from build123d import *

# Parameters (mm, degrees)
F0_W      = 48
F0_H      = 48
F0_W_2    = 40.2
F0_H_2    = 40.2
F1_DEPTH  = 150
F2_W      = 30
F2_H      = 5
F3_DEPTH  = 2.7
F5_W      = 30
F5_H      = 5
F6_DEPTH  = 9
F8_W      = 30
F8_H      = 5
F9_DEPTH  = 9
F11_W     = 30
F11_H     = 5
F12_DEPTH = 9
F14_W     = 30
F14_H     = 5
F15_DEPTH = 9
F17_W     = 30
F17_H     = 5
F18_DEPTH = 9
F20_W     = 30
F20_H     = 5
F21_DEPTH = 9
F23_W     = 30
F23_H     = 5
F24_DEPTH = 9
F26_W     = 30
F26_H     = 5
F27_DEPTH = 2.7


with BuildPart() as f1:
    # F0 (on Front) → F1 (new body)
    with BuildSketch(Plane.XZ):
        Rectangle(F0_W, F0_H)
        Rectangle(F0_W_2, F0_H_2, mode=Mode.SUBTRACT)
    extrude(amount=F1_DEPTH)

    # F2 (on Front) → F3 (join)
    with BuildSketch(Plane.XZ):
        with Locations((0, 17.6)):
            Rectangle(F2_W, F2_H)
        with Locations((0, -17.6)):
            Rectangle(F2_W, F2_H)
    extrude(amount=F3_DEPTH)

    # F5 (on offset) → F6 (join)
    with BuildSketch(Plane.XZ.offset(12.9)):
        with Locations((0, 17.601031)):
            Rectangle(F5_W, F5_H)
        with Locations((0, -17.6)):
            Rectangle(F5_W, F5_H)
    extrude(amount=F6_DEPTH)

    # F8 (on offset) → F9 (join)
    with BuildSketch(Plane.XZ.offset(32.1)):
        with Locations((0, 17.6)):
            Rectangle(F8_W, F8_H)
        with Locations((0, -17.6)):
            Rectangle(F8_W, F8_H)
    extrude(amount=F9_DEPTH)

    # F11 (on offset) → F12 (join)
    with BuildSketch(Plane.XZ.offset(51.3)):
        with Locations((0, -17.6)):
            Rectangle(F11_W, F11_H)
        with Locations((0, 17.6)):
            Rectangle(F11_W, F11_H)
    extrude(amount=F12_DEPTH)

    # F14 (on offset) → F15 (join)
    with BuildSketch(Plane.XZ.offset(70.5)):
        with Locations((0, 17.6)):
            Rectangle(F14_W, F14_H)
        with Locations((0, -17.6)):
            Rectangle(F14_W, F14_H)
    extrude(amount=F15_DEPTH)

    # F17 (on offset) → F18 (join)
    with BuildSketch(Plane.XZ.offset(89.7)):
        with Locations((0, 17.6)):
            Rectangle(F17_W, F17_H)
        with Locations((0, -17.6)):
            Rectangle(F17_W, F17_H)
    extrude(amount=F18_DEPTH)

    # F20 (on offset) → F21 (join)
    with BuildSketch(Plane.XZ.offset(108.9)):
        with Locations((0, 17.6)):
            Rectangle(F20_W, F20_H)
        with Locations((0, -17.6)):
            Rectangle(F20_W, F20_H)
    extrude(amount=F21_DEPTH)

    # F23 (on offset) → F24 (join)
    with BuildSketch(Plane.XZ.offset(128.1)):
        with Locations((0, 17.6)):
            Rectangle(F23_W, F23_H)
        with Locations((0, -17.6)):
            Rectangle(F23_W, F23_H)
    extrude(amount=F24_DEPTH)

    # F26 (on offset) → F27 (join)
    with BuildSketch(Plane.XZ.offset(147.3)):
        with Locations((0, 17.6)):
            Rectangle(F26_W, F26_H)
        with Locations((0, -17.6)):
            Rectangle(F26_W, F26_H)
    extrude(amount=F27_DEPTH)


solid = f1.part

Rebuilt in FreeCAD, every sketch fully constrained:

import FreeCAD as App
import Part
import Sketcher

V = App.Vector

doc = App.newDocument("Part")
params = doc.addObject("Spreadsheet::Sheet", "Params")
for row, (alias, value) in enumerate([
    ("sketch1_width", "48 mm"),
    ("sketch1_width2", "40.2 mm"),
    ("pad1_length", "150 mm"),
    ("sketch2_width", "30 mm"),
    ("sketch2_height", "5 mm"),
    ("pad2_length", "2.7 mm"),
    ("sketch3_width", "30 mm"),
    ("sketch3_height", "5 mm"),
    ("pad3_length", "9 mm"),
    ("sketch4_width", "30 mm"),
    ("sketch4_height", "5 mm"),
    ("pad4_length", "9 mm"),
    ("sketch5_width", "30 mm"),
    ("sketch5_height", "5 mm"),
    ("pad5_length", "9 mm"),
    ("sketch6_width", "30 mm"),
    ("sketch6_height", "5 mm"),
    ("pad6_length", "9 mm"),
    ("sketch7_width", "30 mm"),
    ("sketch7_height", "5 mm"),
    ("pad7_length", "9 mm"),
    ("sketch8_width", "30 mm"),
    ("sketch8_height", "5 mm"),
    ("pad8_length", "9 mm"),
    ("sketch9_width", "30 mm"),
    ("sketch9_height", "5 mm"),
    ("pad9_length", "9 mm"),
    ("sketch10_width", "30 mm"),
    ("sketch10_height", "5 mm"),
    ("pad10_length", "2.7 mm"),
], start=1):
    params.set(f"A{row}", alias)
    params.set(f"B{row}", "=" + value)
    params.setAlias(f"B{row}", alias)

body = doc.addObject("PartDesign::Body", "Body")

sketch1 = body.newObject("Sketcher::SketchObject", "Sketch")
sketch1.AttachmentSupport = (doc.getObject("XZ_Plane"), [""])
sketch1.MapMode = "FlatFace"
sketch1.addGeometry([
    Part.LineSegment(V(-24, 24, 0), V(-24, -24, 0)),
    Part.LineSegment(V(-24, -24, 0), V(24, -24, 0)),
    Part.LineSegment(V(24, -24, 0), V(24, 24, 0)),
    Part.LineSegment(V(24, 24, 0), V(-24, 24, 0)),
    Part.LineSegment(V(20.1, -20.1, 0), V(-20.1, -20.1, 0)),
    Part.LineSegment(V(-20.1, -20.1, 0), V(-20.1, 20.1, 0)),
    Part.LineSegment(V(-20.1, 20.1, 0), V(20.1, 20.1, 0)),
    Part.LineSegment(V(20.1, 20.1, 0), V(20.1, -20.1, 0)),
], False)
sketch1.addConstraint([
    Sketcher.Constraint("Coincident", 0, 2, 1, 1),
    Sketcher.Constraint("Coincident", 1, 2, 2, 1),
    Sketcher.Constraint("Coincident", 2, 2, 3, 1),
    Sketcher.Constraint("Coincident", 3, 2, 0, 1),
    Sketcher.Constraint("Coincident", 4, 2, 5, 1),
    Sketcher.Constraint("Coincident", 5, 2, 6, 1),
    Sketcher.Constraint("Coincident", 6, 2, 7, 1),
    Sketcher.Constraint("Coincident", 7, 2, 4, 1),
    Sketcher.Constraint("Vertical", 0),
    Sketcher.Constraint("Horizontal", 1),
    Sketcher.Constraint("Vertical", 2),
    Sketcher.Constraint("Horizontal", 3),
    Sketcher.Constraint("Horizontal", 4),
    Sketcher.Constraint("Vertical", 5),
    Sketcher.Constraint("Horizontal", 6),
    Sketcher.Constraint("Vertical", 7),
    Sketcher.Constraint("Symmetric", 0, 2, 2, 2, -1, 1),
    Sketcher.Constraint("Symmetric", 4, 2, 6, 2, -1, 1),
    Sketcher.Constraint("Equal", 3, 0),
    Sketcher.Constraint("Equal", 6, 5),
    Sketcher.Constraint("DistanceX", 1, 1, 1, 2, 48.0),
    Sketcher.Constraint("DistanceX", 4, 2, 4, 1, 40.2),
])
sketch1.setExpression("Constraints[20]", "Params.sketch1_width")
sketch1.setExpression("Constraints[21]", "Params.sketch1_width2")
pad1 = body.newObject("PartDesign::Pad", "Pad")
pad1.Profile = sketch1
pad1.setExpression("Length", "Params.pad1_length")

sketch2 = body.newObject("Sketcher::SketchObject", "Sketch001")
sketch2.AttachmentSupport = (doc.getObject("XZ_Plane"), [""])
sketch2.MapMode = "FlatFace"
sketch2.addGeometry([
    Part.LineSegment(V(-15, 20.1, 0), V(-15, 15.1, 0)),
    Part.LineSegment(V(-15, 15.1, 0), V(15, 15.1, 0)),
    Part.LineSegment(V(15, 15.1, 0), V(15, 20.1, 0)),
    Part.LineSegment(V(15, 20.1, 0), V(-15, 20.1, 0)),
    Part.LineSegment(V(-15, -15.1, 0), V(-15, -20.1, 0)),
    Part.LineSegment(V(-15, -20.1, 0), V(15, -20.1, 0)),
    Part.LineSegment(V(15, -20.1, 0), V(15, -15.1, 0)),
    Part.LineSegment(V(15, -15.1, 0), V(-15, -15.1, 0)),
], False)
sketch2.addConstraint([
    Sketcher.Constraint("Coincident", 0, 2, 1, 1),
    Sketcher.Constraint("Coincident", 1, 2, 2, 1),
    Sketcher.Constraint("Coincident", 2, 2, 3, 1),
    Sketcher.Constraint("Coincident", 3, 2, 0, 1),
    Sketcher.Constraint("Coincident", 4, 2, 5, 1),
    Sketcher.Constraint("Coincident", 5, 2, 6, 1),
    Sketcher.Constraint("Coincident", 6, 2, 7, 1),
    Sketcher.Constraint("Coincident", 7, 2, 4, 1),
    Sketcher.Constraint("Vertical", 0),
    Sketcher.Constraint("Horizontal", 1),
    Sketcher.Constraint("Vertical", 2),
    Sketcher.Constraint("Horizontal", 3),
    Sketcher.Constraint("Vertical", 4),
    Sketcher.Constraint("Horizontal", 5),
    Sketcher.Constraint("Vertical", 6),
    Sketcher.Constraint("Horizontal", 7),
    Sketcher.Constraint("Symmetric", 2, 2, 4, 2, -1, 1),
    Sketcher.Constraint("Symmetric", 0, 2, 6, 2, -1, 1),
    Sketcher.Constraint("Vertical", 3, 2, 4, 2),
    Sketcher.Constraint("DistanceX", 1, 1, 1, 2, 30.0),
    Sketcher.Constraint("DistanceY", 0, 2, 0, 1, 5.0),
    Sketcher.Constraint("DistanceY", -1, 1, 0, 2, 15.1),
])
sketch2.setExpression("Constraints[19]", "Params.sketch2_width")
sketch2.setExpression("Constraints[20]", "Params.sketch2_height")
pad2 = body.newObject("PartDesign::Pad", "Pad001")
pad2.Profile = sketch2
pad2.setExpression("Length", "Params.pad2_length")

sketch3 = body.newObject("Sketcher::SketchObject", "Sketch002")
sketch3.AttachmentSupport = (doc.getObject("XZ_Plane"), [""])
sketch3.MapMode = "FlatFace"
sketch3.AttachmentOffset = App.Placement(V(0, 0, 12.9), App.Rotation())
sketch3.addGeometry([
    Part.LineSegment(V(-15, 20.101031, 0), V(-15, 15.101031, 0)),
    Part.LineSegment(V(-15, 15.101031, 0), V(15, 15.101031, 0)),
    Part.LineSegment(V(15, 15.101031, 0), V(15, 20.101031, 0)),
    Part.LineSegment(V(15, 20.101031, 0), V(-15, 20.101031, 0)),
    Part.LineSegment(V(-15, -15.1, 0), V(-15, -20.1, 0)),
    Part.LineSegment(V(-15, -20.1, 0), V(15, -20.1, 0)),
    Part.LineSegment(V(15, -20.1, 0), V(15, -15.1, 0)),
    Part.LineSegment(V(15, -15.1, 0), V(-15, -15.1, 0)),
], False)
sketch3.addConstraint([
    Sketcher.Constraint("Coincident", 0, 2, 1, 1),
    Sketcher.Constraint("Coincident", 1, 2, 2, 1),
    Sketcher.Constraint("Coincident", 2, 2, 3, 1),
    Sketcher.Constraint("Coincident", 3, 2, 0, 1),
    Sketcher.Constraint("Coincident", 4, 2, 5, 1),
    Sketcher.Constraint("Coincident", 5, 2, 6, 1),
    Sketcher.Constraint("Coincident", 6, 2, 7, 1),
    Sketcher.Constraint("Coincident", 7, 2, 4, 1),
    Sketcher.Constraint("Vertical", 0),
    Sketcher.Constraint("Horizontal", 1),
    Sketcher.Constraint("Vertical", 2),
    Sketcher.Constraint("Horizontal", 3),
    Sketcher.Constraint("Vertical", 4),
    Sketcher.Constraint("Horizontal", 5),
    Sketcher.Constraint("Vertical", 6),
    Sketcher.Constraint("Horizontal", 7),
    Sketcher.Constraint("Vertical", 3, 2, 4, 2),
    Sketcher.Constraint("Vertical", 2, 2, 5, 2),
    Sketcher.Constraint("Equal", 2, 4),
    Sketcher.Constraint("DistanceX", 1, 1, 1, 2, 30.0),
    Sketcher.Constraint("DistanceY", 0, 2, 0, 1, 5.0),
    Sketcher.Constraint("DistanceX", 0, 2, -1, 1, 15.0),
    Sketcher.Constraint("DistanceY", 4, 2, -1, 1, 20.1),
    Sketcher.Constraint("DistanceY", -1, 1, 0, 2, 15.101031),
])
sketch3.setExpression("Constraints[19]", "Params.sketch3_width")
sketch3.setExpression("Constraints[20]", "Params.sketch3_height")
pad3 = body.newObject("PartDesign::Pad", "Pad002")
pad3.Profile = sketch3
pad3.setExpression("Length", "Params.pad3_length")

sketch4 = body.newObject("Sketcher::SketchObject", "Sketch003")
sketch4.AttachmentSupport = (doc.getObject("XZ_Plane"), [""])
sketch4.MapMode = "FlatFace"
sketch4.AttachmentOffset = App.Placement(V(0, 0, 32.1), App.Rotation())
sketch4.addGeometry([
    Part.LineSegment(V(-15, 20.1, 0), V(-15, 15.1, 0)),
    Part.LineSegment(V(-15, 15.1, 0), V(15, 15.1, 0)),
    Part.LineSegment(V(15, 15.1, 0), V(15, 20.1, 0)),
    Part.LineSegment(V(15, 20.1, 0), V(-15, 20.1, 0)),
    Part.LineSegment(V(-15, -15.1, 0), V(-15, -20.1, 0)),
    Part.LineSegment(V(-15, -20.1, 0), V(15, -20.1, 0)),
    Part.LineSegment(V(15, -20.1, 0), V(15, -15.1, 0)),
    Part.LineSegment(V(15, -15.1, 0), V(-15, -15.1, 0)),
], False)
sketch4.addConstraint([
    Sketcher.Constraint("Coincident", 0, 2, 1, 1),
    Sketcher.Constraint("Coincident", 1, 2, 2, 1),
    Sketcher.Constraint("Coincident", 2, 2, 3, 1),
    Sketcher.Constraint("Coincident", 3, 2, 0, 1),
    Sketcher.Constraint("Coincident", 4, 2, 5, 1),
    Sketcher.Constraint("Coincident", 5, 2, 6, 1),
    Sketcher.Constraint("Coincident", 6, 2, 7, 1),
    Sketcher.Constraint("Coincident", 7, 2, 4, 1),
    Sketcher.Constraint("Vertical", 0),
    Sketcher.Constraint("Horizontal", 1),
    Sketcher.Constraint("Vertical", 2),
    Sketcher.Constraint("Horizontal", 3),
    Sketcher.Constraint("Vertical", 4),
    Sketcher.Constraint("Horizontal", 5),
    Sketcher.Constraint("Vertical", 6),
    Sketcher.Constraint("Horizontal", 7),
    Sketcher.Constraint("Symmetric", 2, 2, 4, 2, -1, 1),
    Sketcher.Constraint("Symmetric", 0, 2, 6, 2, -1, 1),
    Sketcher.Constraint("Vertical", 3, 2, 4, 2),
    Sketcher.Constraint("DistanceX", 1, 1, 1, 2, 30.0),
    Sketcher.Constraint("DistanceY", 0, 2, 0, 1, 5.0),
    Sketcher.Constraint("DistanceY", -1, 1, 0, 2, 15.1),
])
sketch4.setExpression("Constraints[19]", "Params.sketch4_width")
sketch4.setExpression("Constraints[20]", "Params.sketch4_height")
pad4 = body.newObject("PartDesign::Pad", "Pad003")
pad4.Profile = sketch4
pad4.setExpression("Length", "Params.pad4_length")

sketch5 = body.newObject("Sketcher::SketchObject", "Sketch004")
sketch5.AttachmentSupport = (doc.getObject("XZ_Plane"), [""])
sketch5.MapMode = "FlatFace"
sketch5.AttachmentOffset = App.Placement(V(0, 0, 51.3), App.Rotation())
sketch5.addGeometry([
    Part.LineSegment(V(-15, -15.1, 0), V(-15, -20.1, 0)),
    Part.LineSegment(V(-15, -20.1, 0), V(15, -20.1, 0)),
    Part.LineSegment(V(15, -20.1, 0), V(15, -15.1, 0)),
    Part.LineSegment(V(15, -15.1, 0), V(-15, -15.1, 0)),
    Part.LineSegment(V(-15, 20.1, 0), V(-15, 15.1, 0)),
    Part.LineSegment(V(-15, 15.1, 0), V(15, 15.1, 0)),
    Part.LineSegment(V(15, 15.1, 0), V(15, 20.1, 0)),
    Part.LineSegment(V(15, 20.1, 0), V(-15, 20.1, 0)),
], False)
sketch5.addConstraint([
    Sketcher.Constraint("Coincident", 0, 2, 1, 1),
    Sketcher.Constraint("Coincident", 1, 2, 2, 1),
    Sketcher.Constraint("Coincident", 2, 2, 3, 1),
    Sketcher.Constraint("Coincident", 3, 2, 0, 1),
    Sketcher.Constraint("Coincident", 4, 2, 5, 1),
    Sketcher.Constraint("Coincident", 5, 2, 6, 1),
    Sketcher.Constraint("Coincident", 6, 2, 7, 1),
    Sketcher.Constraint("Coincident", 7, 2, 4, 1),
    Sketcher.Constraint("Vertical", 0),
    Sketcher.Constraint("Horizontal", 1),
    Sketcher.Constraint("Vertical", 2),
    Sketcher.Constraint("Horizontal", 3),
    Sketcher.Constraint("Vertical", 4),
    Sketcher.Constraint("Horizontal", 5),
    Sketcher.Constraint("Vertical", 6),
    Sketcher.Constraint("Horizontal", 7),
    Sketcher.Constraint("Symmetric", 2, 2, 4, 2, -1, 1),
    Sketcher.Constraint("Symmetric", 0, 2, 6, 2, -1, 1),
    Sketcher.Constraint("Vertical", 3, 2, 4, 2),
    Sketcher.Constraint("DistanceX", 1, 1, 1, 2, 30.0),
    Sketcher.Constraint("DistanceY", 0, 2, 0, 1, 5.0),
    Sketcher.Constraint("DistanceY", 0, 2, -1, 1, 20.1),
])
sketch5.setExpression("Constraints[19]", "Params.sketch5_width")
sketch5.setExpression("Constraints[20]", "Params.sketch5_height")
pad5 = body.newObject("PartDesign::Pad", "Pad004")
pad5.Profile = sketch5
pad5.setExpression("Length", "Params.pad5_length")

sketch6 = body.newObject("Sketcher::SketchObject", "Sketch005")
sketch6.AttachmentSupport = (doc.getObject("XZ_Plane"), [""])
sketch6.MapMode = "FlatFace"
sketch6.AttachmentOffset = App.Placement(V(0, 0, 70.5), App.Rotation())
sketch6.addGeometry([
    Part.LineSegment(V(-15, 20.1, 0), V(-15, 15.1, 0)),
    Part.LineSegment(V(-15, 15.1, 0), V(15, 15.1, 0)),
    Part.LineSegment(V(15, 15.1, 0), V(15, 20.1, 0)),
    Part.LineSegment(V(15, 20.1, 0), V(-15, 20.1, 0)),
    Part.LineSegment(V(-15, -15.1, 0), V(-15, -20.1, 0)),
    Part.LineSegment(V(-15, -20.1, 0), V(15, -20.1, 0)),
    Part.LineSegment(V(15, -20.1, 0), V(15, -15.1, 0)),
    Part.LineSegment(V(15, -15.1, 0), V(-15, -15.1, 0)),
], False)
sketch6.addConstraint([
    Sketcher.Constraint("Coincident", 0, 2, 1, 1),
    Sketcher.Constraint("Coincident", 1, 2, 2, 1),
    Sketcher.Constraint("Coincident", 2, 2, 3, 1),
    Sketcher.Constraint("Coincident", 3, 2, 0, 1),
    Sketcher.Constraint("Coincident", 4, 2, 5, 1),
    Sketcher.Constraint("Coincident", 5, 2, 6, 1),
    Sketcher.Constraint("Coincident", 6, 2, 7, 1),
    Sketcher.Constraint("Coincident", 7, 2, 4, 1),
    Sketcher.Constraint("Vertical", 0),
    Sketcher.Constraint("Horizontal", 1),
    Sketcher.Constraint("Vertical", 2),
    Sketcher.Constraint("Horizontal", 3),
    Sketcher.Constraint("Vertical", 4),
    Sketcher.Constraint("Horizontal", 5),
    Sketcher.Constraint("Vertical", 6),
    Sketcher.Constraint("Horizontal", 7),
    Sketcher.Constraint("Symmetric", 2, 2, 4, 2, -1, 1),
    Sketcher.Constraint("Symmetric", 0, 2, 6, 2, -1, 1),
    Sketcher.Constraint("Vertical", 3, 2, 4, 2),
    Sketcher.Constraint("DistanceX", 1, 1, 1, 2, 30.0),
    Sketcher.Constraint("DistanceY", 0, 2, 0, 1, 5.0),
    Sketcher.Constraint("DistanceY", -1, 1, 0, 2, 15.1),
])
sketch6.setExpression("Constraints[19]", "Params.sketch6_width")
sketch6.setExpression("Constraints[20]", "Params.sketch6_height")
pad6 = body.newObject("PartDesign::Pad", "Pad005")
pad6.Profile = sketch6
pad6.setExpression("Length", "Params.pad6_length")

sketch7 = body.newObject("Sketcher::SketchObject", "Sketch006")
sketch7.AttachmentSupport = (doc.getObject("XZ_Plane"), [""])
sketch7.MapMode = "FlatFace"
sketch7.AttachmentOffset = App.Placement(V(0, 0, 89.7), App.Rotation())
sketch7.addGeometry([
    Part.LineSegment(V(-15, 20.1, 0), V(-15, 15.1, 0)),
    Part.LineSegment(V(-15, 15.1, 0), V(15, 15.1, 0)),
    Part.LineSegment(V(15, 15.1, 0), V(15, 20.1, 0)),
    Part.LineSegment(V(15, 20.1, 0), V(-15, 20.1, 0)),
    Part.LineSegment(V(-15, -15.1, 0), V(-15, -20.1, 0)),
    Part.LineSegment(V(-15, -20.1, 0), V(15, -20.1, 0)),
    Part.LineSegment(V(15, -20.1, 0), V(15, -15.1, 0)),
    Part.LineSegment(V(15, -15.1, 0), V(-15, -15.1, 0)),
], False)
sketch7.addConstraint([
    Sketcher.Constraint("Coincident", 0, 2, 1, 1),
    Sketcher.Constraint("Coincident", 1, 2, 2, 1),
    Sketcher.Constraint("Coincident", 2, 2, 3, 1),
    Sketcher.Constraint("Coincident", 3, 2, 0, 1),
    Sketcher.Constraint("Coincident", 4, 2, 5, 1),
    Sketcher.Constraint("Coincident", 5, 2, 6, 1),
    Sketcher.Constraint("Coincident", 6, 2, 7, 1),
    Sketcher.Constraint("Coincident", 7, 2, 4, 1),
    Sketcher.Constraint("Vertical", 0),
    Sketcher.Constraint("Horizontal", 1),
    Sketcher.Constraint("Vertical", 2),
    Sketcher.Constraint("Horizontal", 3),
    Sketcher.Constraint("Vertical", 4),
    Sketcher.Constraint("Horizontal", 5),
    Sketcher.Constraint("Vertical", 6),
    Sketcher.Constraint("Horizontal", 7),
    Sketcher.Constraint("Symmetric", 2, 2, 4, 2, -1, 1),
    Sketcher.Constraint("Symmetric", 0, 2, 6, 2, -1, 1),
    Sketcher.Constraint("Vertical", 3, 2, 4, 2),
    Sketcher.Constraint("DistanceX", 1, 1, 1, 2, 30.0),
    Sketcher.Constraint("DistanceY", 0, 2, 0, 1, 5.0),
    Sketcher.Constraint("DistanceY", -1, 1, 0, 2, 15.1),
])
sketch7.setExpression("Constraints[19]", "Params.sketch7_width")
sketch7.setExpression("Constraints[20]", "Params.sketch7_height")
pad7 = body.newObject("PartDesign::Pad", "Pad006")
pad7.Profile = sketch7
pad7.setExpression("Length", "Params.pad7_length")

sketch8 = body.newObject("Sketcher::SketchObject", "Sketch007")
sketch8.AttachmentSupport = (doc.getObject("XZ_Plane"), [""])
sketch8.MapMode = "FlatFace"
sketch8.AttachmentOffset = App.Placement(V(0, 0, 108.9), App.Rotation())
sketch8.addGeometry([
    Part.LineSegment(V(-15, 20.1, 0), V(-15, 15.1, 0)),
    Part.LineSegment(V(-15, 15.1, 0), V(15, 15.1, 0)),
    Part.LineSegment(V(15, 15.1, 0), V(15, 20.1, 0)),
    Part.LineSegment(V(15, 20.1, 0), V(-15, 20.1, 0)),
    Part.LineSegment(V(-15, -15.1, 0), V(-15, -20.1, 0)),
    Part.LineSegment(V(-15, -20.1, 0), V(15, -20.1, 0)),
    Part.LineSegment(V(15, -20.1, 0), V(15, -15.1, 0)),
    Part.LineSegment(V(15, -15.1, 0), V(-15, -15.1, 0)),
], False)
sketch8.addConstraint([
    Sketcher.Constraint("Coincident", 0, 2, 1, 1),
    Sketcher.Constraint("Coincident", 1, 2, 2, 1),
    Sketcher.Constraint("Coincident", 2, 2, 3, 1),
    Sketcher.Constraint("Coincident", 3, 2, 0, 1),
    Sketcher.Constraint("Coincident", 4, 2, 5, 1),
    Sketcher.Constraint("Coincident", 5, 2, 6, 1),
    Sketcher.Constraint("Coincident", 6, 2, 7, 1),
    Sketcher.Constraint("Coincident", 7, 2, 4, 1),
    Sketcher.Constraint("Vertical", 0),
    Sketcher.Constraint("Horizontal", 1),
    Sketcher.Constraint("Vertical", 2),
    Sketcher.Constraint("Horizontal", 3),
    Sketcher.Constraint("Vertical", 4),
    Sketcher.Constraint("Horizontal", 5),
    Sketcher.Constraint("Vertical", 6),
    Sketcher.Constraint("Horizontal", 7),
    Sketcher.Constraint("Symmetric", 2, 2, 4, 2, -1, 1),
    Sketcher.Constraint("Symmetric", 0, 2, 6, 2, -1, 1),
    Sketcher.Constraint("Vertical", 3, 2, 4, 2),
    Sketcher.Constraint("DistanceX", 1, 1, 1, 2, 30.0),
    Sketcher.Constraint("DistanceY", 0, 2, 0, 1, 5.0),
    Sketcher.Constraint("DistanceY", -1, 1, 0, 2, 15.1),
])
sketch8.setExpression("Constraints[19]", "Params.sketch8_width")
sketch8.setExpression("Constraints[20]", "Params.sketch8_height")
pad8 = body.newObject("PartDesign::Pad", "Pad007")
pad8.Profile = sketch8
pad8.setExpression("Length", "Params.pad8_length")

sketch9 = body.newObject("Sketcher::SketchObject", "Sketch008")
sketch9.AttachmentSupport = (doc.getObject("XZ_Plane"), [""])
sketch9.MapMode = "FlatFace"
sketch9.AttachmentOffset = App.Placement(V(0, 0, 128.1), App.Rotation())
sketch9.addGeometry([
    Part.LineSegment(V(-15, 20.1, 0), V(-15, 15.1, 0)),
    Part.LineSegment(V(-15, 15.1, 0), V(15, 15.1, 0)),
    Part.LineSegment(V(15, 15.1, 0), V(15, 20.1, 0)),
    Part.LineSegment(V(15, 20.1, 0), V(-15, 20.1, 0)),
    Part.LineSegment(V(-15, -15.1, 0), V(-15, -20.1, 0)),
    Part.LineSegment(V(-15, -20.1, 0), V(15, -20.1, 0)),
    Part.LineSegment(V(15, -20.1, 0), V(15, -15.1, 0)),
    Part.LineSegment(V(15, -15.1, 0), V(-15, -15.1, 0)),
], False)
sketch9.addConstraint([
    Sketcher.Constraint("Coincident", 0, 2, 1, 1),
    Sketcher.Constraint("Coincident", 1, 2, 2, 1),
    Sketcher.Constraint("Coincident", 2, 2, 3, 1),
    Sketcher.Constraint("Coincident", 3, 2, 0, 1),
    Sketcher.Constraint("Coincident", 4, 2, 5, 1),
    Sketcher.Constraint("Coincident", 5, 2, 6, 1),
    Sketcher.Constraint("Coincident", 6, 2, 7, 1),
    Sketcher.Constraint("Coincident", 7, 2, 4, 1),
    Sketcher.Constraint("Vertical", 0),
    Sketcher.Constraint("Horizontal", 1),
    Sketcher.Constraint("Vertical", 2),
    Sketcher.Constraint("Horizontal", 3),
    Sketcher.Constraint("Vertical", 4),
    Sketcher.Constraint("Horizontal", 5),
    Sketcher.Constraint("Vertical", 6),
    Sketcher.Constraint("Horizontal", 7),
    Sketcher.Constraint("Symmetric", 2, 2, 4, 2, -1, 1),
    Sketcher.Constraint("Symmetric", 0, 2, 6, 2, -1, 1),
    Sketcher.Constraint("Vertical", 3, 2, 4, 2),
    Sketcher.Constraint("DistanceX", 1, 1, 1, 2, 30.0),
    Sketcher.Constraint("DistanceY", 0, 2, 0, 1, 5.0),
    Sketcher.Constraint("DistanceY", -1, 1, 0, 2, 15.1),
])
sketch9.setExpression("Constraints[19]", "Params.sketch9_width")
sketch9.setExpression("Constraints[20]", "Params.sketch9_height")
pad9 = body.newObject("PartDesign::Pad", "Pad008")
pad9.Profile = sketch9
pad9.setExpression("Length", "Params.pad9_length")

sketch10 = body.newObject("Sketcher::SketchObject", "Sketch009")
sketch10.AttachmentSupport = (doc.getObject("XZ_Plane"), [""])
sketch10.MapMode = "FlatFace"
sketch10.AttachmentOffset = App.Placement(V(0, 0, 147.3), App.Rotation())
sketch10.addGeometry([
    Part.LineSegment(V(-15, 20.1, 0), V(-15, 15.1, 0)),
    Part.LineSegment(V(-15, 15.1, 0), V(15, 15.1, 0)),
    Part.LineSegment(V(15, 15.1, 0), V(15, 20.1, 0)),
    Part.LineSegment(V(15, 20.1, 0), V(-15, 20.1, 0)),
    Part.LineSegment(V(-15, -15.1, 0), V(-15, -20.1, 0)),
    Part.LineSegment(V(-15, -20.1, 0), V(15, -20.1, 0)),
    Part.LineSegment(V(15, -20.1, 0), V(15, -15.1, 0)),
    Part.LineSegment(V(15, -15.1, 0), V(-15, -15.1, 0)),
], False)
sketch10.addConstraint([
    Sketcher.Constraint("Coincident", 0, 2, 1, 1),
    Sketcher.Constraint("Coincident", 1, 2, 2, 1),
    Sketcher.Constraint("Coincident", 2, 2, 3, 1),
    Sketcher.Constraint("Coincident", 3, 2, 0, 1),
    Sketcher.Constraint("Coincident", 4, 2, 5, 1),
    Sketcher.Constraint("Coincident", 5, 2, 6, 1),
    Sketcher.Constraint("Coincident", 6, 2, 7, 1),
    Sketcher.Constraint("Coincident", 7, 2, 4, 1),
    Sketcher.Constraint("Vertical", 0),
    Sketcher.Constraint("Horizontal", 1),
    Sketcher.Constraint("Vertical", 2),
    Sketcher.Constraint("Horizontal", 3),
    Sketcher.Constraint("Vertical", 4),
    Sketcher.Constraint("Horizontal", 5),
    Sketcher.Constraint("Vertical", 6),
    Sketcher.Constraint("Horizontal", 7),
    Sketcher.Constraint("Symmetric", 2, 2, 4, 2, -1, 1),
    Sketcher.Constraint("Symmetric", 0, 2, 6, 2, -1, 1),
    Sketcher.Constraint("Vertical", 3, 2, 4, 2),
    Sketcher.Constraint("DistanceX", 1, 1, 1, 2, 30.0),
    Sketcher.Constraint("DistanceY", 0, 2, 0, 1, 5.0),
    Sketcher.Constraint("DistanceY", -1, 1, 0, 2, 15.1),
])
sketch10.setExpression("Constraints[19]", "Params.sketch10_width")
sketch10.setExpression("Constraints[20]", "Params.sketch10_height")
pad10 = body.newObject("PartDesign::Pad", "Pad009")
pad10.Profile = sketch10
pad10.setExpression("Length", "Params.pad10_length")

doc.recompute()
